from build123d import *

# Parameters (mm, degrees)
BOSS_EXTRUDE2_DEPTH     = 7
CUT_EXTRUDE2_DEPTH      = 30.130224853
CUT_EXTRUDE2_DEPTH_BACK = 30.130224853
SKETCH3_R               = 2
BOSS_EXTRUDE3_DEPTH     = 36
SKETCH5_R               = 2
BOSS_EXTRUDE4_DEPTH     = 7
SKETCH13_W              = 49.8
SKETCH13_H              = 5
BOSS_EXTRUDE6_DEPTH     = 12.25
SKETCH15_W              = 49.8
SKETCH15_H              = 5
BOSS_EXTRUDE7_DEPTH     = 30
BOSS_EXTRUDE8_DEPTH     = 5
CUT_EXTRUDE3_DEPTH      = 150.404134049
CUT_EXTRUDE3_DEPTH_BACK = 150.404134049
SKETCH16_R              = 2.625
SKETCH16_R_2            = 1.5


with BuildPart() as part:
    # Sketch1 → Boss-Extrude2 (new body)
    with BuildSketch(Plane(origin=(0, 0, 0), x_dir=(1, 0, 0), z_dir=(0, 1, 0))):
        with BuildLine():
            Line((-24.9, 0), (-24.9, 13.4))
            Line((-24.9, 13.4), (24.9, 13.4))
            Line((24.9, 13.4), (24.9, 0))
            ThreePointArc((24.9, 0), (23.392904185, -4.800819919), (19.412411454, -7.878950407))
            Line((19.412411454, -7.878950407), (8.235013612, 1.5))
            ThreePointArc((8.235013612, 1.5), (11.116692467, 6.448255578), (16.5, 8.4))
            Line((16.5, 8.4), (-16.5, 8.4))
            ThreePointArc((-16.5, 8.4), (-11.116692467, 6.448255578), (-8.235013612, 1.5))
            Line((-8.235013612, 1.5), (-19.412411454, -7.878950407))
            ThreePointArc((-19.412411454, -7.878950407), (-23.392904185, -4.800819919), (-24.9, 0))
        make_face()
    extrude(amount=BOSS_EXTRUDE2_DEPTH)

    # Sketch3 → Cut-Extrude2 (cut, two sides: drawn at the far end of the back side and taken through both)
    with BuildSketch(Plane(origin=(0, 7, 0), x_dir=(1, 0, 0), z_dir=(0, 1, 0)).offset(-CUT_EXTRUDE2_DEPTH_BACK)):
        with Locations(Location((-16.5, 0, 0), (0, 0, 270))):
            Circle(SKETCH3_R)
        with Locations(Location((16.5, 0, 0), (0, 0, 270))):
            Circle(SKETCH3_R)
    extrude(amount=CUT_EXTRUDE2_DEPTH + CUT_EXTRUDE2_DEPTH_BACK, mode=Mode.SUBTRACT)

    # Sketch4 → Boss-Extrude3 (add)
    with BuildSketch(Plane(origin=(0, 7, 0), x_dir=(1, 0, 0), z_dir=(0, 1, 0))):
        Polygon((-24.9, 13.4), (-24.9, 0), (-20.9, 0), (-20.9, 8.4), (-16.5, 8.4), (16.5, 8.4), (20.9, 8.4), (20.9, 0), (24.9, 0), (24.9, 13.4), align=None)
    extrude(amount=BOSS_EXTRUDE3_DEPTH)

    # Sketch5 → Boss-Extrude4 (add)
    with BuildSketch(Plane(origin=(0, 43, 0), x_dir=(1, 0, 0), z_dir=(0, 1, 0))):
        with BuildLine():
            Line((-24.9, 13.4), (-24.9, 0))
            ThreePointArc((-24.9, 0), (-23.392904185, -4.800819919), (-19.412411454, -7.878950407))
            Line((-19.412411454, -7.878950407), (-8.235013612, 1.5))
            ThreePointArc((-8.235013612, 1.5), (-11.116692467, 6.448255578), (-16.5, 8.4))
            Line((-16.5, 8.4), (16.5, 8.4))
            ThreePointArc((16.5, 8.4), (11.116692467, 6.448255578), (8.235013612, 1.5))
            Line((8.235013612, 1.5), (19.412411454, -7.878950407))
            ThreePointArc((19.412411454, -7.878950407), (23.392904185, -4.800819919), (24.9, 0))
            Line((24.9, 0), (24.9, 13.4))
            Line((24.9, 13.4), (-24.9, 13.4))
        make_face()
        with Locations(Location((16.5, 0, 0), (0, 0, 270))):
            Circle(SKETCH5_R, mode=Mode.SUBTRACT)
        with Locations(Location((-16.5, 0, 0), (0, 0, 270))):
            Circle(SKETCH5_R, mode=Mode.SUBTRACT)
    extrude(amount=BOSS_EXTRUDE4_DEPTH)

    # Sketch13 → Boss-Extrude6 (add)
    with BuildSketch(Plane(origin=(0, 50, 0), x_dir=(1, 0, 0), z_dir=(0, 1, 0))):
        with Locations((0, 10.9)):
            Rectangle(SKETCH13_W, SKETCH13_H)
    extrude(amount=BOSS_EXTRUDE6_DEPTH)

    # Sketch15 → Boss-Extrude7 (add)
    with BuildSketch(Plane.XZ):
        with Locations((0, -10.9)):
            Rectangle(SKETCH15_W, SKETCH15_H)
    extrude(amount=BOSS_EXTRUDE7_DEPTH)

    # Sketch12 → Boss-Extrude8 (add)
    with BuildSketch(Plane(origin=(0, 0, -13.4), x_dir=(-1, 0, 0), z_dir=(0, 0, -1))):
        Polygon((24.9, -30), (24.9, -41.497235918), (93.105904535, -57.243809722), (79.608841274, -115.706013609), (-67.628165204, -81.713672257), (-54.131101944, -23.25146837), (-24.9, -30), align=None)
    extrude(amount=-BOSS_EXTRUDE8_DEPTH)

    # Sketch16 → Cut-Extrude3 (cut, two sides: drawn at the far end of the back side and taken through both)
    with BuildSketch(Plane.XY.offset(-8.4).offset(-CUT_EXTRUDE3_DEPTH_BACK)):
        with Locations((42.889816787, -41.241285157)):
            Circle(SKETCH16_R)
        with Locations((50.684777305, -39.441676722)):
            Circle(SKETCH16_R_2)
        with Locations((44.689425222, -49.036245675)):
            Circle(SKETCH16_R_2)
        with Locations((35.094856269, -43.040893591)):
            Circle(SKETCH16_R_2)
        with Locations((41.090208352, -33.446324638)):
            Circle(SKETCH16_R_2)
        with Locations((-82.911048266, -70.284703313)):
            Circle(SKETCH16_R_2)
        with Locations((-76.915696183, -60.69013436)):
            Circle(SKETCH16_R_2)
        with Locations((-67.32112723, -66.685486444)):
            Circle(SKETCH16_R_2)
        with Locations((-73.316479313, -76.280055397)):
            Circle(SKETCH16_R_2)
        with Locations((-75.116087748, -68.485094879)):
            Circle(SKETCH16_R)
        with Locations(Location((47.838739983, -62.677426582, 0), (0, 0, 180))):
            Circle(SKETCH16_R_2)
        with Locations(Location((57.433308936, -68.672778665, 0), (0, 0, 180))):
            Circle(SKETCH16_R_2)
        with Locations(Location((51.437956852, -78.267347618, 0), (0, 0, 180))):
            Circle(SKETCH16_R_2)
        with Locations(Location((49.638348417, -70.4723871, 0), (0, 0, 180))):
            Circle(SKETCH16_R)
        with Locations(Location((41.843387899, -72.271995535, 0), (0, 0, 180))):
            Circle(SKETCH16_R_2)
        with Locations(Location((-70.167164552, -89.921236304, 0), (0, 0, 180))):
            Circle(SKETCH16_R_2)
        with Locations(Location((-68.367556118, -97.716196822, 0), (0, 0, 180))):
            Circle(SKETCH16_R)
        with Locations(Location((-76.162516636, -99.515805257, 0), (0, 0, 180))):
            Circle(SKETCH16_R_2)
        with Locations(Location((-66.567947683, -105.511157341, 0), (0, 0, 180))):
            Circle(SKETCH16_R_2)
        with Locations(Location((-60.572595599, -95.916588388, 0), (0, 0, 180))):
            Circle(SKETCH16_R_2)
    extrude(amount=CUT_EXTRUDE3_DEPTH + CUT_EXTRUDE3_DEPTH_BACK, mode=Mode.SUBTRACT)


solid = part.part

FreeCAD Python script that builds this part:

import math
import FreeCAD as App
import Part
import Sketcher
from FreeCAD import Vector
Q = App.Units.Quantity


def add_polygon(sketch, points):
    """Adds a closed chain of lines whose ends are joined by coincident constraints."""
    first, n = sketch.GeometryCount, len(points)
    for a, b in zip(points, points[1:] + points[:1]):
        sketch.addGeometry(Part.LineSegment(App.Vector(*a, 0), App.Vector(*b, 0)), False)
    for i in range(n):
        sketch.addConstraint(Sketcher.Constraint("Coincident", first + i, 2, first + (i + 1) % n, 1))

doc = App.newDocument("Part")
body = doc.addObject("PartDesign::Body", "Body")

# Sketch on XZ plane
sketch1 = body.newObject("Sketcher::SketchObject", "Sketch")
sketch1.AttachmentSupport = (doc.getObject("XZ_Plane"), [""])
sketch1.MapMode = "FlatFace"
sketch1.addGeometry(Part.LineSegment(Vector(-25, -13, 0), Vector(-25, 0, 0)), False)
sketch1.addGeometry(Part.ArcOfCircle(Part.Circle(Vector(-17, 0, 0), Vector(0, 0, 1), 8), math.radians(110), math.radians(180)), False)
sketch1.addGeometry(Part.LineSegment(Vector(-19, 8, 0), Vector(-8, -2, 0)), False)
sketch1.addGeometry(Part.ArcOfCircle(Part.Circle(Vector(-17, 0, 0), Vector(0, 0, 1), 8), math.radians(-90), math.radians(-10)), False)
sketch1.addGeometry(Part.LineSegment(Vector(-16, -8, 0), Vector(16, -8, 0)), False)
sketch1.addGeometry(Part.ArcOfCircle(Part.Circle(Vector(17, 0, 0), Vector(0, 0, 1), 8), math.radians(-170), math.radians(-90)), False)
sketch1.addGeometry(Part.LineSegment(Vector(8, -2, 0), Vector(19, 8, 0)), False)
sketch1.addGeometry(Part.ArcOfCircle(Part.Circle(Vector(17, 0, 0), Vector(0, 0, 1), 8), math.radians(0), math.radians(70)), False)
sketch1.addGeometry(Part.LineSegment(Vector(25, 0, 0), Vector(25, -13, 0)), False)
sketch1.addGeometry(Part.LineSegment(Vector(25, -13, 0), Vector(-25, -13, 0)), False)
sketch1.addConstraint(Sketcher.Constraint("Tangent", 0, 2, 1, 2))
sketch1.addConstraint(Sketcher.Constraint("Coincident", 1, 1, 2, 1))
sketch1.addConstraint(Sketcher.Constraint("Coincident", 2, 2, 3, 2))
sketch1.addConstraint(Sketcher.Constraint("Tangent", 3, 1, 4, 1))
sketch1.addConstraint(Sketcher.Constraint("Tangent", 4, 2, 5, 2))
sketch1.addConstraint(Sketcher.Constraint("Coincident", 5, 1, 6, 1))
sketch1.addConstraint(Sketcher.Constraint("Coincident", 6, 2, 7, 2))
sketch1.addConstraint(Sketcher.Constraint("Tangent", 7, 1, 8, 1))
sketch1.addConstraint(Sketcher.Constraint("Coincident", 8, 2, 9, 1))
sketch1.addConstraint(Sketcher.Constraint("Coincident", 9, 2, 0, 1))
sketch1.addConstraint(Sketcher.Constraint("Vertical", 0))
sketch1.addConstraint(Sketcher.Constraint("Horizontal", 4))
sketch1.addConstraint(Sketcher.Constraint("Vertical", 8))
sketch1.addConstraint(Sketcher.Constraint("Horizontal", 9))
sketch1.addConstraint(Sketcher.Constraint("Coincident", 3, 3, 1, 3))
sketch1.addConstraint(Sketcher.Constraint("Coincident", 7, 3, 5, 3))
sketch1.addConstraint(Sketcher.Constraint("Equal", 1, 3))
sketch1.addConstraint(Sketcher.Constraint("Equal", 3, 5))
sketch1.addConstraint(Sketcher.Constraint("Equal", 5, 7))
sketch1.addConstraint(Sketcher.Constraint("Symmetric", 1, 3, 5, 3, -1, 1))
sketch1.addConstraint(Sketcher.Constraint("Horizontal", 2, 2, 5, 1))
sketch1.addConstraint(Sketcher.Constraint("Horizontal", 1, 1, 6, 2))
sketch1.addConstraint(Sketcher.Constraint("Radius", 1, 8.4))
sketch1.addConstraint(Sketcher.Constraint("DistanceX", 4, 1, 4, 2, 33.0))
sketch1.addConstraint(Sketcher.Constraint("Angle", 2, Q("-40 deg")))
sketch1.addConstraint(Sketcher.Constraint("DistanceY", 0, 1, 0, 2, 13.4))
sketch1.addConstraint(Sketcher.Constraint("DistanceY", 2, 2, -1, 1, 1.5))
pad1 = body.newObject("PartDesign::Pad", "Pad")
pad1.Profile = sketch1
pad1.Length = 7
pad1.Reversed = True

# Sketch on XZ plane
sketch2 = body.newObject("Sketcher::SketchObject", "Sketch001")
sketch2.AttachmentSupport = (doc.getObject("XZ_Plane"), [""])
sketch2.MapMode = "FlatFace"
sketch2.AttachmentOffset = App.Placement(Vector(0, 0, -7), App.Rotation())
sketch2.addGeometry(Part.Circle(Vector(-16.5, 0, 0), Vector(0, 0, 1), 2), False)
sketch2.addGeometry(Part.Circle(Vector(16.5, 0, 0), Vector(0, 0, 1), 2), False)
sketch2.addConstraint(Sketcher.Constraint("Equal", 0, 1))
sketch2.addConstraint(Sketcher.Constraint("Symmetric", 0, 3, 1, 3, -1, 1))
sketch2.addConstraint(Sketcher.Constraint("PointOnObject", 0, 3, -1))
sketch2.addConstraint(Sketcher.Constraint("Diameter", 0, 4.0))
sketch2.addConstraint(Sketcher.Constraint("DistanceX", 0, 3, 1, 3, 33.0))
pocket1 = body.newObject("PartDesign::Pocket", "Pocket")
pocket1.Profile = sketch2
pocket1.Type = "ThroughAll"
pocket1.Midplane = True

# Sketch on XZ plane
sketch3 = body.newObject("Sketcher::SketchObject", "Sketch002")
sketch3.AttachmentSupport = (doc.getObject("XZ_Plane"), [""])
sketch3.MapMode = "FlatFace"
sketch3.AttachmentOffset = App.Placement(Vector(0, 0, -7), App.Rotation())
add_polygon(sketch3, [(-24.9, -13.4), (-24.9, 0), (-20.9, 0), (-20.9, -8.4), (20.9, -8.4), (20.9, 0), (24.9, 0), (24.9, -13.4)])  # lines 0-7
sketch3.addConstraint(Sketcher.Constraint("Vertical", 0))
sketch3.addConstraint(Sketcher.Constraint("Horizontal", 1))
sketch3.addConstraint(Sketcher.Constraint("Vertical", 2))
sketch3.addConstraint(Sketcher.Constraint("Horizontal", 3))
sketch3.addConstraint(Sketcher.Constraint("Vertical", 4))
sketch3.addConstraint(Sketcher.Constraint("Horizontal", 5))
sketch3.addConstraint(Sketcher.Constraint("Vertical", 6))
sketch3.addConstraint(Sketcher.Constraint("Horizontal", 7))
sketch3.addConstraint(Sketcher.Constraint("Symmetric", 1, 2, 4, 2, -1, 1))
sketch3.addConstraint(Sketcher.Constraint("Symmetric", 0, 2, 5, 2, -2))
sketch3.addConstraint(Sketcher.Constraint("DistanceX", 1, 1, 1, 2, 4.0))
sketch3.addConstraint(Sketcher.Constraint("DistanceX", 3, 1, 3, 2, 41.8))
sketch3.addConstraint(Sketcher.Constraint("DistanceY", 0, 1, 0, 2, 13.4))
sketch3.addConstraint(Sketcher.Constraint("DistanceY", 2, 2, 2, 1, 8.4))
pad2 = body.newObject("PartDesign::Pad", "Pad001")
pad2.Profile = sketch3
pad2.Length = 36
pad2.Reversed = True

# Sketch on XZ plane
sketch4 = body.newObject("Sketcher::SketchObject", "Sketch003")
sketch4.AttachmentSupport = (doc.getObject("XZ_Plane"), [""])
sketch4.MapMode = "FlatFace"
sketch4.AttachmentOffset = App.Placement(Vector(0, 0, -43), App.Rotation())
sketch4.addGeometry(Part.LineSegment(Vector(-24.9, -13.4, 0), Vector(-24.9, 0, 0)), False)
sketch4.addGeometry(Part.ArcOfCircle(Part.Circle(Vector(-16.5, 0, 0), Vector(0, 0, 1), 8.4), math.radians(110), math.radians(180)), False)
sketch4.addGeometry(Part.LineSegment(Vector(-19.4, 7.9, 0), Vector(-8.2, -1.5, 0)), False)
sketch4.addGeometry(Part.ArcOfCircle(Part.Circle(Vector(-16.5, 0, 0), Vector(0, 0, 1), 8.4), math.radians(-90), math.radians(-10)), False)
sketch4.addGeometry(Part.LineSegment(Vector(-16.5, -8.4, 0), Vector(16.5, -8.4, 0)), False)
sketch4.addGeometry(Part.ArcOfCircle(Part.Circle(Vector(16.5, 0, 0), Vector(0, 0, 1), 8.4), math.radians(-170), math.radians(-90)), False)
sketch4.addGeometry(Part.LineSegment(Vector(8.2, -1.5, 0), Vector(19.4, 7.9, 0)), False)
sketch4.addGeometry(Part.ArcOfCircle(Part.Circle(Vector(16.5, 0, 0), Vector(0, 0, 1), 8.4), math.radians(0), math.radians(70)), False)
sketch4.addGeometry(Part.LineSegment(Vector(24.9, 0, 0), Vector(24.9, -13.4, 0)), False)
sketch4.addGeometry(Part.LineSegment(Vector(24.9, -13.4, 0), Vector(-24.9, -13.4, 0)), False)
sketch4.addGeometry(Part.Circle(Vector(-16.5, 0, 0), Vector(0, 0, 1), 2), False)
sketch4.addGeometry(Part.Circle(Vector(16.5, 0, 0), Vector(0, 0, 1), 2), False)
sketch4.addConstraint(Sketcher.Constraint("Tangent", 0, 2, 1, 2))
sketch4.addConstraint(Sketcher.Constraint("Coincident", 1, 1, 2, 1))
sketch4.addConstraint(Sketcher.Constraint("Coincident", 2, 2, 3, 2))
sketch4.addConstraint(Sketcher.Constraint("Tangent", 3, 1, 4, 1))
sketch4.addConstraint(Sketcher.Constraint("Tangent", 4, 2, 5, 2))
sketch4.addConstraint(Sketcher.Constraint("Coincident", 5, 1, 6, 1))
sketch4.addConstraint(Sketcher.Constraint("Coincident", 6, 2, 7, 2))
sketch4.addConstraint(Sketcher.Constraint("Tangent", 7, 1, 8, 1))
sketch4.addConstraint(Sketcher.Constraint("Coincident", 8, 2, 9, 1))
sketch4.addConstraint(Sketcher.Constraint("Coincident", 9, 2, 0, 1))
sketch4.addConstraint(Sketcher.Constraint("Vertical", 0))
sketch4.addConstraint(Sketcher.Constraint("Horizontal", 4))
sketch4.addConstraint(Sketcher.Constraint("Vertical", 8))
sketch4.addConstraint(Sketcher.Constraint("Horizontal", 9))
sketch4.addConstraint(Sketcher.Constraint("Coincident", 3, 3, 1, 3))
sketch4.addConstraint(Sketcher.Constraint("Coincident", 7, 3, 5, 3))
sketch4.addConstraint(Sketcher.Constraint("Coincident", 10, 3, 1, 3))
sketch4.addConstraint(Sketcher.Constraint("Coincident", 11, 3, 5, 3))
sketch4.addConstraint(Sketcher.Constraint("Equal", 1, 3))
sketch4.addConstraint(Sketcher.Constraint("Equal", 3, 5))
sketch4.addConstraint(Sketcher.Constraint("Equal", 5, 7))
sketch4.addConstraint(Sketcher.Constraint("Equal", 10, 11))
sketch4.addConstraint(Sketcher.Constraint("Symmetric", 1, 3, 5, 3, -1, 1))
sketch4.addConstraint(Sketcher.Constraint("Horizontal", 2, 2, 5, 1))
sketch4.addConstraint(Sketcher.Constraint("Horizontal", 1, 1, 6, 2))
sketch4.addConstraint(Sketcher.Constraint("Diameter", 10, 4.0))
sketch4.addConstraint(Sketcher.Constraint("Radius", 1, 8.4))
sketch4.addConstraint(Sketcher.Constraint("DistanceX", 4, 1, 4, 2, 33.0))
sketch4.addConstraint(Sketcher.Constraint("Angle", 2, Q("-40 deg")))
sketch4.addConstraint(Sketcher.Constraint("DistanceY", 0, 1, 0, 2, 13.4))
sketch4.addConstraint(Sketcher.Constraint("DistanceY", 2, 2, -1, 1, 1.5))
pad3 = body.newObject("PartDesign::Pad", "Pad002")
pad3.Profile = sketch4
pad3.Length = 7
pad3.Reversed = True

# Sketch on XZ plane
sketch5 = body.newObject("Sketcher::SketchObject", "Sketch004")
sketch5.AttachmentSupport = (doc.getObject("XZ_Plane"), [""])
sketch5.MapMode = "FlatFace"
sketch5.AttachmentOffset = App.Placement(Vector(0, 0, -50), App.Rotation())
add_polygon(sketch5, [(-25, -13), (-25, -8), (25, -8), (25, -13)])  # lines 0-3
sketch5.addConstraint(Sketcher.Constraint("Vertical", 0))
sketch5.addConstraint(Sketcher.Constraint("Horizontal", 1))
sketch5.addConstraint(Sketcher.Constraint("Vertical", 2))
sketch5.addConstraint(Sketcher.Constraint("Horizontal", 3))
sketch5.addConstraint(Sketcher.Constraint("DistanceY", 0, 1, 0, 2, 5.0))
sketch5.addConstraint(Sketcher.Constraint("DistanceX", 1, 1, 1, 2, 49.8))
sketch5.addConstraint(Sketcher.Constraint("DistanceX", 0, 2, -1, 1, 24.9))
sketch5.addConstraint(Sketcher.Constraint("DistanceY", 0, 2, -1, 1, 8.4))
pad4 = body.newObject("PartDesign::Pad", "Pad003")
pad4.Profile = sketch5
pad4.Length = 12.25
pad4.Reversed = True

# Sketch on XZ plane
sketch6 = body.newObject("Sketcher::SketchObject", "Sketch005")
sketch6.AttachmentSupport = (doc.getObject("XZ_Plane"), [""])
sketch6.MapMode = "FlatFace"
add_polygon(sketch6, [(-25, -8), (-25, -13), (25, -13), (25, -8)])  # lines 0-3
sketch6.addConstraint(Sketcher.Constraint("Vertical", 0))
sketch6.addConstraint(Sketcher.Constraint("Horizontal", 1))
sketch6.addConstraint(Sketcher.Constraint("Vertical", 2))
sketch6.addConstraint(Sketcher.Constraint("Horizontal", 3))
sketch6.addConstraint(Sketcher.Constraint("DistanceY", 0, 2, 0, 1, 5.0))
sketch6.addConstraint(Sketcher.Constraint("DistanceX", 1, 1, 1, 2, 49.8))
sketch6.addConstraint(Sketcher.Constraint("DistanceX", 0, 2, -1, 1, 24.9))
sketch6.addConstraint(Sketcher.Constraint("DistanceY", 0, 2, -1, 1, 13.4))
pad5 = body.newObject("PartDesign::Pad", "Pad004")
pad5.Profile = sketch6
pad5.Length = 30

# Sketch on XY plane
sketch7 = body.newObject("Sketcher::SketchObject", "Sketch006")
sketch7.AttachmentSupport = (doc.getObject("XY_Plane"), [""])
sketch7.MapMode = "FlatFace"
sketch7.AttachmentOffset = App.Placement(Vector(0, 0, -13.4), App.Rotation())
add_polygon(sketch7, [(-25, -41), (-25, -30), (25, -30), (54, -23), (68, -82), (-80, -116), (-93, -57)])  # lines 0-6
sketch7.addConstraint(Sketcher.Constraint("Vertical", 0))
sketch7.addConstraint(Sketcher.Constraint("Horizontal", 1))
sketch7.addConstraint(Sketcher.Constraint("Perpendicular", 2, 3))
sketch7.addConstraint(Sketcher.Constraint("Perpendicular", 3, 4))
sketch7.addConstraint(Sketcher.Constraint("Perpendicular", 4, 5))
sketch7.addConstraint(Sketcher.Constraint("Perpendicular", 5, 6))
sketch7.addConstraint(Sketcher.Constraint("Equal", 3, 5))
sketch7.addConstraint(Sketcher.Constraint("Angle", 2, Q("13 deg")))
sketch7.addConstraint(Sketcher.Constraint("Distance", 2, 30.0))
sketch7.addConstraint(Sketcher.Constraint("Distance", 3, 60.0))
sketch7.addConstraint(Sketcher.Constraint("Distance", 6, 70.0))
sketch7.addConstraint(Sketcher.Constraint("DistanceX", 1, 1, 1, 2, 49.8))
sketch7.addConstraint(Sketcher.Constraint("DistanceY", 0, 2, -1, 1, 30.0))
sketch7.addConstraint(Sketcher.Constraint("DistanceX", 0, 2, -1, 1, 24.9))
pad6 = body.newObject("PartDesign::Pad", "Pad005")
pad6.Profile = sketch7
pad6.Length = 5

# Sketch on XY plane
sketch8 = body.newObject("Sketcher::SketchObject", "Sketch007")
sketch8.AttachmentSupport = (doc.getObject("XY_Plane"), [""])
sketch8.MapMode = "FlatFace"
sketch8.AttachmentOffset = App.Placement(Vector(0, 0, -8.4), App.Rotation())
sketch8.addGeometry(Part.Circle(Vector(42.9, -41.2, 0), Vector(0, 0, 1), 2.6), False)
sketch8.addGeometry(Part.Circle(Vector(50.7, -39.4, 0), Vector(0, 0, 1), 1.5), False)
sketch8.addGeometry(Part.Circle(Vector(44.7, -49, 0), Vector(0, 0, 1), 1.5), False)
sketch8.addGeometry(Part.Circle(Vector(35.1, -43, 0), Vector(0, 0, 1), 1.5), False)
sketch8.addGeometry(Part.Circle(Vector(41.1, -33.4, 0), Vector(0, 0, 1), 1.5), False)
sketch8.addGeometry(Part.Circle(Vector(-82.9, -70.3, 0), Vector(0, 0, 1), 1.5), False)
sketch8.addGeometry(Part.Circle(Vector(-76.9, -60.7, 0), Vector(0, 0, 1), 1.5), False)
sketch8.addGeometry(Part.Circle(Vector(-67.3, -66.7, 0), Vector(0, 0, 1), 1.5), False)
sketch8.addGeometry(Part.Circle(Vector(-73.3, -76.3, 0), Vector(0, 0, 1), 1.5), False)
sketch8.addGeometry(Part.Circle(Vector(-75.1, -68.5, 0), Vector(0, 0, 1), 2.6), False)
sketch8.addGeometry(Part.Circle(Vector(47.8, -62.7, 0), Vector(0, 0, 1), 1.5), False)
sketch8.addGeometry(Part.Circle(Vector(57.4, -68.7, 0), Vector(0, 0, 1), 1.5), False)
sketch8.addGeometry(Part.Circle(Vector(51.4, -78.3, 0), Vector(0, 0, 1), 1.5), False)
sketch8.addGeometry(Part.Circle(Vector(49.6, -70.5, 0), Vector(0, 0, 1), 2.6), False)
sketch8.addGeometry(Part.Circle(Vector(41.8, -72.3, 0), Vector(0, 0, 1), 1.5), False)
sketch8.addGeometry(Part.Circle(Vector(-70.2, -89.9, 0), Vector(0, 0, 1), 1.5), False)
sketch8.addGeometry(Part.Circle(Vector(-68.4, -97.7, 0), Vector(0, 0, 1), 2.6), False)
sketch8.addGeometry(Part.Circle(Vector(-76.2, -99.5, 0), Vector(0, 0, 1), 1.5), False)
sketch8.addGeometry(Part.Circle(Vector(-66.6, -105.5, 0), Vector(0, 0, 1), 1.5), False)
sketch8.addGeometry(Part.Circle(Vector(-60.6, -95.9, 0), Vector(0, 0, 1), 1.5), False)
sketch8.addConstraint(Sketcher.Constraint("Equal", 1, 2))
sketch8.addConstraint(Sketcher.Constraint("Equal", 2, 3))
sketch8.addConstraint(Sketcher.Constraint("Equal", 3, 4))
sketch8.addConstraint(Sketcher.Constraint("Equal", 4, 5))
sketch8.addConstraint(Sketcher.Constraint("Equal", 5, 6))
sketch8.addConstraint(Sketcher.Constraint("Equal", 6, 7))
sketch8.addConstraint(Sketcher.Constraint("Equal", 7, 8))
sketch8.addConstraint(Sketcher.Constraint("Equal", 0, 9))
sketch8.addConstraint(Sketcher.Constraint("Equal", 8, 10))
sketch8.addConstraint(Sketcher.Constraint("Equal", 10, 11))
sketch8.addConstraint(Sketcher.Constraint("Equal", 11, 12))
sketch8.addConstraint(Sketcher.Constraint("Equal", 9, 13))
sketch8.addConstraint(Sketcher.Constraint("Equal", 12, 14))
sketch8.addConstraint(Sketcher.Constraint("Equal", 14, 15))
sketch8.addConstraint(Sketcher.Constraint("Equal", 13, 16))
sketch8.addConstraint(Sketcher.Constraint("Equal", 15, 17))
sketch8.addConstraint(Sketcher.Constraint("Equal", 17, 18))
sketch8.addConstraint(Sketcher.Constraint("Equal", 18, 19))
sketch8.addConstraint(Sketcher.Constraint("Diameter", 1, 3.0))
sketch8.addConstraint(Sketcher.Constraint("Diameter", 0, 5.25))
sketch8.addConstraint(Sketcher.Constraint("DistanceY", 7, 3, 0, 3, 25.444201))
sketch8.addConstraint(Sketcher.Constraint("DistanceY", 9, 3, 3, 3, 25.444201))
sketch8.addConstraint(Sketcher.Constraint("DistanceY", 10, 3, 4, 3, 29.231102))
sketch8.addConstraint(Sketcher.Constraint("DistanceY", 11, 3, 1, 3, 29.231102))
sketch8.addConstraint(Sketcher.Constraint("DistanceY", 12, 3, 2, 3, 29.231102))
sketch8.addConstraint(Sketcher.Constraint("DistanceY", 13, 3, 0, 3, 29.231102))
sketch8.addConstraint(Sketcher.Constraint("DistanceY", 15, 3, 6, 3, 29.231102))
sketch8.addConstraint(Sketcher.Constraint("DistanceY", 16, 3, 9, 3, 29.231102))
sketch8.addConstraint(Sketcher.Constraint("DistanceY", 17, 3, 5, 3, 29.231102))
sketch8.addConstraint(Sketcher.Constraint("DistanceY", 18, 3, 8, 3, 29.231102))
sketch8.addConstraint(Sketcher.Constraint("DistanceX", -1, 1, 4, 3, 41.090208))
sketch8.addConstraint(Sketcher.Constraint("DistanceX", 5, 3, -1, 1, 82.911048))
sketch8.addConstraint(Sketcher.Constraint("DistanceX", 8, 3, -1, 1, 73.316479))
sketch8.addConstraint(Sketcher.Constraint("DistanceX", -1, 1, 10, 3, 47.83874))
sketch8.addConstraint(Sketcher.Constraint("DistanceX", -1, 1, 11, 3, 57.433309))
sketch8.addConstraint(Sketcher.Constraint("DistanceY", 11, 3, -1, 1, 68.672779))
sketch8.addConstraint(Sketcher.Constraint("DistanceX", -1, 1, 13, 3, 49.638348))
sketch8.addConstraint(Sketcher.Constraint("DistanceY", 19, 3, -1, 1, 95.916588))
sketch8.addConstraint(Sketcher.Constraint("DistanceX", 0, 3, 1, 3, 7.794961))
sketch8.addConstraint(Sketcher.Constraint("DistanceY", 0, 3, 1, 3, 1.799608))
sketch8.addConstraint(Sketcher.Constraint("DistanceX", 0, 3, 2, 3, 1.799608))
sketch8.addConstraint(Sketcher.Constraint("DistanceY", 2, 3, 0, 3, 7.794961))
sketch8.addConstraint(Sketcher.Constraint("DistanceX", 3, 3, 0, 3, 7.794961))
sketch8.addConstraint(Sketcher.Constraint("DistanceY", 3, 3, 0, 3, 1.799608))
sketch8.addConstraint(Sketcher.Constraint("DistanceX", 4, 3, 0, 3, 1.799608))
sketch8.addConstraint(Sketcher.Constraint("DistanceY", 0, 3, 4, 3, 7.794961))
sketch8.addConstraint(Sketcher.Constraint("DistanceY", 5, 3, 3, 3, 27.24381))
sketch8.addConstraint(Sketcher.Constraint("DistanceY", 5, 3, 6, 3, 9.594569))
sketch8.addConstraint(Sketcher.Constraint("DistanceX", 6, 3, 2, 3, 121.605121))
sketch8.addConstraint(Sketcher.Constraint("DistanceX", 6, 3, 7, 3, 9.594569))
sketch8.addConstraint(Sketcher.Constraint("DistanceY", 8, 3, 7, 3, 9.594569))
sketch8.addConstraint(Sketcher.Constraint("DistanceX", 5, 3, 9, 3, 7.794961))
sketch8.addConstraint(Sketcher.Constraint("DistanceX", 2, 3, 12, 3, 6.748532))
sketch8.addConstraint(Sketcher.Constraint("DistanceX", 14, 3, 13, 3, 7.794961))
sketch8.addConstraint(Sketcher.Constraint("DistanceY", 14, 3, 13, 3, 1.799608))
sketch8.addConstraint(Sketcher.Constraint("DistanceX", 6, 3, 15, 3, 6.748532))
sketch8.addConstraint(Sketcher.Constraint("DistanceX", 15, 3, 16, 3, 1.799608))
sketch8.addConstraint(Sketcher.Constraint("DistanceX", 17, 3, 16, 3, 7.794961))
sketch8.addConstraint(Sketcher.Constraint("DistanceX", 16, 3, 18, 3, 1.799608))
sketch8.addConstraint(Sketcher.Constraint("DistanceX", 16, 3, 19, 3, 7.794961))
pocket2 = body.newObject("PartDesign::Pocket", "Pocket001")
pocket2.Profile = sketch8
pocket2.Type = "ThroughAll"
pocket2.Midplane = True

doc.recompute()
